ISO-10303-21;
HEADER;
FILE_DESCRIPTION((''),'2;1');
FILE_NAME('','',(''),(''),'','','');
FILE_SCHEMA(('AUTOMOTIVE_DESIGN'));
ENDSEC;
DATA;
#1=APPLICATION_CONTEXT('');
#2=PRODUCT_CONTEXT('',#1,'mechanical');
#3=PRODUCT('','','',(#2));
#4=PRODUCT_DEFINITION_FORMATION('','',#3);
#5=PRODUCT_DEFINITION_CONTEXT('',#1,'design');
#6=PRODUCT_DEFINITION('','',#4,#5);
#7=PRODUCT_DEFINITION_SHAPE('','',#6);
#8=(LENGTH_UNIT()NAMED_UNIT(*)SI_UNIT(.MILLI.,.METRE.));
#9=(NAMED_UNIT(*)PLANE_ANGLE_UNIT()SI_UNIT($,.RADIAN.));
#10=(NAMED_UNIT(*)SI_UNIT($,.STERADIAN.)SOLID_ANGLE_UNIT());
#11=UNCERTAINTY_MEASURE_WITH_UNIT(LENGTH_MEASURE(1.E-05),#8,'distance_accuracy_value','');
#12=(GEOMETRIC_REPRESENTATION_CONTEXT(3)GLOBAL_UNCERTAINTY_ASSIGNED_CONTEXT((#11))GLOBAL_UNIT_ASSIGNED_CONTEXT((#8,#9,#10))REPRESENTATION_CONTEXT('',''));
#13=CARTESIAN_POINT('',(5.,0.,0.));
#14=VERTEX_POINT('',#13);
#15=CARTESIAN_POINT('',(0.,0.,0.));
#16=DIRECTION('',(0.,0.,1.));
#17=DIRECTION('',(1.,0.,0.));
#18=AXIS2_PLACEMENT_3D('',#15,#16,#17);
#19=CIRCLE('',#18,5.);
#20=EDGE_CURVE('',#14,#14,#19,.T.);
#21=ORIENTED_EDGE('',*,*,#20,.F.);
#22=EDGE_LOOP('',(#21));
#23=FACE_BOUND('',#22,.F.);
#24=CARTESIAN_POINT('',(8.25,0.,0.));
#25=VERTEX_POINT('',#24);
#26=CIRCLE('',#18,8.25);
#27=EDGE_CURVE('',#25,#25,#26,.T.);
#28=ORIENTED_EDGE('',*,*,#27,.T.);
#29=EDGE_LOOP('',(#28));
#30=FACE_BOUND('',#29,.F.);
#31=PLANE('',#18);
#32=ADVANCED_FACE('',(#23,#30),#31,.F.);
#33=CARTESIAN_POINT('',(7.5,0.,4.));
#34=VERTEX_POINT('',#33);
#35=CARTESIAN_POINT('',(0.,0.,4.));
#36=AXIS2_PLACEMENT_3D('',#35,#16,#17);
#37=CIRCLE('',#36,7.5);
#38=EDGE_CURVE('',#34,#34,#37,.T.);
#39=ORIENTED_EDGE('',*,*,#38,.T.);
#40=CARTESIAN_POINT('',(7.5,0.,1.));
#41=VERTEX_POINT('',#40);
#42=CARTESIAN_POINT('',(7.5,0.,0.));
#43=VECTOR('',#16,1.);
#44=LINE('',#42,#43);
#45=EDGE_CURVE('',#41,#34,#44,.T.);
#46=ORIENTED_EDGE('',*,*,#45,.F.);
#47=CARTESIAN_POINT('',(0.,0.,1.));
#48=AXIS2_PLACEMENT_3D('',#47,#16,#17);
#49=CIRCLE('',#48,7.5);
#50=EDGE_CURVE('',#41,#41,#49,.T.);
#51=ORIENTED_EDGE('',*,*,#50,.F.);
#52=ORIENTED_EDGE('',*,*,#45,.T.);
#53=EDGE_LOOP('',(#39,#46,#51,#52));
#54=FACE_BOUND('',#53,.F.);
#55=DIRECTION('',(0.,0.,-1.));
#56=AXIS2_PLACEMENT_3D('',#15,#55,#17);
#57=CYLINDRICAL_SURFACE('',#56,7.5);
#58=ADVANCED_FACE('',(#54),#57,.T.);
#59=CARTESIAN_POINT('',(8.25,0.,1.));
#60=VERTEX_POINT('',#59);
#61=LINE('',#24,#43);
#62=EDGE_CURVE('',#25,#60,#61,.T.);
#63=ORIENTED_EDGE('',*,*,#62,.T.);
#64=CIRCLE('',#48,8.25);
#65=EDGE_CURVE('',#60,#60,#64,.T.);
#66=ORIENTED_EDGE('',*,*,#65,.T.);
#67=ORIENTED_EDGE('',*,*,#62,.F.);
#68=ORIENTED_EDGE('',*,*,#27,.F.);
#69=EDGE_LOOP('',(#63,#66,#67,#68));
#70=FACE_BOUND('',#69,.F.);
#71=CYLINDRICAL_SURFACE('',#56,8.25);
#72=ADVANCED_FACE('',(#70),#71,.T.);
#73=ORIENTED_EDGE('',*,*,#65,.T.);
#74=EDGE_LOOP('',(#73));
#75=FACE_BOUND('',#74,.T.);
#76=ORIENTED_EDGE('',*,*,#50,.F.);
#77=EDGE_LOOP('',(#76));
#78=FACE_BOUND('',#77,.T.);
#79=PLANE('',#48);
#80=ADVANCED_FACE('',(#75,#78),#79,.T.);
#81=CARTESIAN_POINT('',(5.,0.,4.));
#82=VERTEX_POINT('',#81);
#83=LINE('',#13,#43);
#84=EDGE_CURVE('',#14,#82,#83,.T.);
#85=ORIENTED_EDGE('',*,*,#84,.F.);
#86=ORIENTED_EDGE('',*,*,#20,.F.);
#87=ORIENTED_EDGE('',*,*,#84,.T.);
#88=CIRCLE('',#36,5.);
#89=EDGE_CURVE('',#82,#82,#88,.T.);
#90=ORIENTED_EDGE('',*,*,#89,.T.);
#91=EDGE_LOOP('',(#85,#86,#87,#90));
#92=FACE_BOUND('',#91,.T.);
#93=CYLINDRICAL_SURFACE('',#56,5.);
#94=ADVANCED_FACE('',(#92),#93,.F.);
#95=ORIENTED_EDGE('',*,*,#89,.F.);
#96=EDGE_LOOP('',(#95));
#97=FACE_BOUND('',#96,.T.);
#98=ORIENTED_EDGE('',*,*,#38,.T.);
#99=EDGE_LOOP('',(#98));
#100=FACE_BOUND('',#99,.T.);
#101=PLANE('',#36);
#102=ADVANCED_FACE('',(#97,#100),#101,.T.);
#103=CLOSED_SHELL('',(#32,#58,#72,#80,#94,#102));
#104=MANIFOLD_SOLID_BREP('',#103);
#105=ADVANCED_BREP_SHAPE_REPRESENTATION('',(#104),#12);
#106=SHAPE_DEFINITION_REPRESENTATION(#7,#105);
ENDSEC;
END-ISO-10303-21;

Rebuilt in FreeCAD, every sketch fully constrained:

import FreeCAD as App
import Part
import Sketcher

doc = App.newDocument("Part")
body = doc.addObject("PartDesign::Body", "Body")

sketch1 = body.newObject("Sketcher::SketchObject", "Sketch")
sketch1.AttachmentSupport = (doc.getObject("XY_Plane"), [""])
sketch1.MapMode = "FlatFace"
sketch1.addGeometry(Part.Circle(App.Vector(0, 0, 0), App.Vector(0, 0, 1), 8), False)
sketch1.addGeometry(Part.Circle(App.Vector(0, 0, 0), App.Vector(0, 0, 1), 8), False)
sketch1.addConstraint(Sketcher.Constraint("Coincident", 0, 3, -1, 1))
sketch1.addConstraint(Sketcher.Constraint("Coincident", 1, 3, -1, 1))
sketch1.addConstraint(Sketcher.Constraint("Diameter", 1, 15.0))
sketch1.addConstraint(Sketcher.Constraint("Diameter", 0, 16.5))
pad1 = body.newObject("PartDesign::Pad", "Pad")
pad1.Profile = sketch1
pad1.Length = 1

sketch2 = body.newObject("Sketcher::SketchObject", "Sketch001")
sketch2.AttachmentSupport = (doc.getObject("XY_Plane"), [""])
sketch2.MapMode = "FlatFace"
sketch2.addGeometry(Part.Circle(App.Vector(0, 0, 0), App.Vector(0, 0, 1), 8), False)
sketch2.addGeometry(Part.Circle(App.Vector(0, 0, 0), App.Vector(0, 0, 1), 5), False)
sketch2.addConstraint(Sketcher.Constraint("Coincident", 0, 3, -1, 1))
sketch2.addConstraint(Sketcher.Constraint("Coincident", 1, 3, -1, 1))
sketch2.addConstraint(Sketcher.Constraint("Diameter", 0, 15.0))
sketch2.addConstraint(Sketcher.Constraint("Diameter", 1, 10.0))
pad2 = body.newObject("PartDesign::Pad", "Pad001")
pad2.Profile = sketch2
pad2.Length = 4

doc.recompute()
